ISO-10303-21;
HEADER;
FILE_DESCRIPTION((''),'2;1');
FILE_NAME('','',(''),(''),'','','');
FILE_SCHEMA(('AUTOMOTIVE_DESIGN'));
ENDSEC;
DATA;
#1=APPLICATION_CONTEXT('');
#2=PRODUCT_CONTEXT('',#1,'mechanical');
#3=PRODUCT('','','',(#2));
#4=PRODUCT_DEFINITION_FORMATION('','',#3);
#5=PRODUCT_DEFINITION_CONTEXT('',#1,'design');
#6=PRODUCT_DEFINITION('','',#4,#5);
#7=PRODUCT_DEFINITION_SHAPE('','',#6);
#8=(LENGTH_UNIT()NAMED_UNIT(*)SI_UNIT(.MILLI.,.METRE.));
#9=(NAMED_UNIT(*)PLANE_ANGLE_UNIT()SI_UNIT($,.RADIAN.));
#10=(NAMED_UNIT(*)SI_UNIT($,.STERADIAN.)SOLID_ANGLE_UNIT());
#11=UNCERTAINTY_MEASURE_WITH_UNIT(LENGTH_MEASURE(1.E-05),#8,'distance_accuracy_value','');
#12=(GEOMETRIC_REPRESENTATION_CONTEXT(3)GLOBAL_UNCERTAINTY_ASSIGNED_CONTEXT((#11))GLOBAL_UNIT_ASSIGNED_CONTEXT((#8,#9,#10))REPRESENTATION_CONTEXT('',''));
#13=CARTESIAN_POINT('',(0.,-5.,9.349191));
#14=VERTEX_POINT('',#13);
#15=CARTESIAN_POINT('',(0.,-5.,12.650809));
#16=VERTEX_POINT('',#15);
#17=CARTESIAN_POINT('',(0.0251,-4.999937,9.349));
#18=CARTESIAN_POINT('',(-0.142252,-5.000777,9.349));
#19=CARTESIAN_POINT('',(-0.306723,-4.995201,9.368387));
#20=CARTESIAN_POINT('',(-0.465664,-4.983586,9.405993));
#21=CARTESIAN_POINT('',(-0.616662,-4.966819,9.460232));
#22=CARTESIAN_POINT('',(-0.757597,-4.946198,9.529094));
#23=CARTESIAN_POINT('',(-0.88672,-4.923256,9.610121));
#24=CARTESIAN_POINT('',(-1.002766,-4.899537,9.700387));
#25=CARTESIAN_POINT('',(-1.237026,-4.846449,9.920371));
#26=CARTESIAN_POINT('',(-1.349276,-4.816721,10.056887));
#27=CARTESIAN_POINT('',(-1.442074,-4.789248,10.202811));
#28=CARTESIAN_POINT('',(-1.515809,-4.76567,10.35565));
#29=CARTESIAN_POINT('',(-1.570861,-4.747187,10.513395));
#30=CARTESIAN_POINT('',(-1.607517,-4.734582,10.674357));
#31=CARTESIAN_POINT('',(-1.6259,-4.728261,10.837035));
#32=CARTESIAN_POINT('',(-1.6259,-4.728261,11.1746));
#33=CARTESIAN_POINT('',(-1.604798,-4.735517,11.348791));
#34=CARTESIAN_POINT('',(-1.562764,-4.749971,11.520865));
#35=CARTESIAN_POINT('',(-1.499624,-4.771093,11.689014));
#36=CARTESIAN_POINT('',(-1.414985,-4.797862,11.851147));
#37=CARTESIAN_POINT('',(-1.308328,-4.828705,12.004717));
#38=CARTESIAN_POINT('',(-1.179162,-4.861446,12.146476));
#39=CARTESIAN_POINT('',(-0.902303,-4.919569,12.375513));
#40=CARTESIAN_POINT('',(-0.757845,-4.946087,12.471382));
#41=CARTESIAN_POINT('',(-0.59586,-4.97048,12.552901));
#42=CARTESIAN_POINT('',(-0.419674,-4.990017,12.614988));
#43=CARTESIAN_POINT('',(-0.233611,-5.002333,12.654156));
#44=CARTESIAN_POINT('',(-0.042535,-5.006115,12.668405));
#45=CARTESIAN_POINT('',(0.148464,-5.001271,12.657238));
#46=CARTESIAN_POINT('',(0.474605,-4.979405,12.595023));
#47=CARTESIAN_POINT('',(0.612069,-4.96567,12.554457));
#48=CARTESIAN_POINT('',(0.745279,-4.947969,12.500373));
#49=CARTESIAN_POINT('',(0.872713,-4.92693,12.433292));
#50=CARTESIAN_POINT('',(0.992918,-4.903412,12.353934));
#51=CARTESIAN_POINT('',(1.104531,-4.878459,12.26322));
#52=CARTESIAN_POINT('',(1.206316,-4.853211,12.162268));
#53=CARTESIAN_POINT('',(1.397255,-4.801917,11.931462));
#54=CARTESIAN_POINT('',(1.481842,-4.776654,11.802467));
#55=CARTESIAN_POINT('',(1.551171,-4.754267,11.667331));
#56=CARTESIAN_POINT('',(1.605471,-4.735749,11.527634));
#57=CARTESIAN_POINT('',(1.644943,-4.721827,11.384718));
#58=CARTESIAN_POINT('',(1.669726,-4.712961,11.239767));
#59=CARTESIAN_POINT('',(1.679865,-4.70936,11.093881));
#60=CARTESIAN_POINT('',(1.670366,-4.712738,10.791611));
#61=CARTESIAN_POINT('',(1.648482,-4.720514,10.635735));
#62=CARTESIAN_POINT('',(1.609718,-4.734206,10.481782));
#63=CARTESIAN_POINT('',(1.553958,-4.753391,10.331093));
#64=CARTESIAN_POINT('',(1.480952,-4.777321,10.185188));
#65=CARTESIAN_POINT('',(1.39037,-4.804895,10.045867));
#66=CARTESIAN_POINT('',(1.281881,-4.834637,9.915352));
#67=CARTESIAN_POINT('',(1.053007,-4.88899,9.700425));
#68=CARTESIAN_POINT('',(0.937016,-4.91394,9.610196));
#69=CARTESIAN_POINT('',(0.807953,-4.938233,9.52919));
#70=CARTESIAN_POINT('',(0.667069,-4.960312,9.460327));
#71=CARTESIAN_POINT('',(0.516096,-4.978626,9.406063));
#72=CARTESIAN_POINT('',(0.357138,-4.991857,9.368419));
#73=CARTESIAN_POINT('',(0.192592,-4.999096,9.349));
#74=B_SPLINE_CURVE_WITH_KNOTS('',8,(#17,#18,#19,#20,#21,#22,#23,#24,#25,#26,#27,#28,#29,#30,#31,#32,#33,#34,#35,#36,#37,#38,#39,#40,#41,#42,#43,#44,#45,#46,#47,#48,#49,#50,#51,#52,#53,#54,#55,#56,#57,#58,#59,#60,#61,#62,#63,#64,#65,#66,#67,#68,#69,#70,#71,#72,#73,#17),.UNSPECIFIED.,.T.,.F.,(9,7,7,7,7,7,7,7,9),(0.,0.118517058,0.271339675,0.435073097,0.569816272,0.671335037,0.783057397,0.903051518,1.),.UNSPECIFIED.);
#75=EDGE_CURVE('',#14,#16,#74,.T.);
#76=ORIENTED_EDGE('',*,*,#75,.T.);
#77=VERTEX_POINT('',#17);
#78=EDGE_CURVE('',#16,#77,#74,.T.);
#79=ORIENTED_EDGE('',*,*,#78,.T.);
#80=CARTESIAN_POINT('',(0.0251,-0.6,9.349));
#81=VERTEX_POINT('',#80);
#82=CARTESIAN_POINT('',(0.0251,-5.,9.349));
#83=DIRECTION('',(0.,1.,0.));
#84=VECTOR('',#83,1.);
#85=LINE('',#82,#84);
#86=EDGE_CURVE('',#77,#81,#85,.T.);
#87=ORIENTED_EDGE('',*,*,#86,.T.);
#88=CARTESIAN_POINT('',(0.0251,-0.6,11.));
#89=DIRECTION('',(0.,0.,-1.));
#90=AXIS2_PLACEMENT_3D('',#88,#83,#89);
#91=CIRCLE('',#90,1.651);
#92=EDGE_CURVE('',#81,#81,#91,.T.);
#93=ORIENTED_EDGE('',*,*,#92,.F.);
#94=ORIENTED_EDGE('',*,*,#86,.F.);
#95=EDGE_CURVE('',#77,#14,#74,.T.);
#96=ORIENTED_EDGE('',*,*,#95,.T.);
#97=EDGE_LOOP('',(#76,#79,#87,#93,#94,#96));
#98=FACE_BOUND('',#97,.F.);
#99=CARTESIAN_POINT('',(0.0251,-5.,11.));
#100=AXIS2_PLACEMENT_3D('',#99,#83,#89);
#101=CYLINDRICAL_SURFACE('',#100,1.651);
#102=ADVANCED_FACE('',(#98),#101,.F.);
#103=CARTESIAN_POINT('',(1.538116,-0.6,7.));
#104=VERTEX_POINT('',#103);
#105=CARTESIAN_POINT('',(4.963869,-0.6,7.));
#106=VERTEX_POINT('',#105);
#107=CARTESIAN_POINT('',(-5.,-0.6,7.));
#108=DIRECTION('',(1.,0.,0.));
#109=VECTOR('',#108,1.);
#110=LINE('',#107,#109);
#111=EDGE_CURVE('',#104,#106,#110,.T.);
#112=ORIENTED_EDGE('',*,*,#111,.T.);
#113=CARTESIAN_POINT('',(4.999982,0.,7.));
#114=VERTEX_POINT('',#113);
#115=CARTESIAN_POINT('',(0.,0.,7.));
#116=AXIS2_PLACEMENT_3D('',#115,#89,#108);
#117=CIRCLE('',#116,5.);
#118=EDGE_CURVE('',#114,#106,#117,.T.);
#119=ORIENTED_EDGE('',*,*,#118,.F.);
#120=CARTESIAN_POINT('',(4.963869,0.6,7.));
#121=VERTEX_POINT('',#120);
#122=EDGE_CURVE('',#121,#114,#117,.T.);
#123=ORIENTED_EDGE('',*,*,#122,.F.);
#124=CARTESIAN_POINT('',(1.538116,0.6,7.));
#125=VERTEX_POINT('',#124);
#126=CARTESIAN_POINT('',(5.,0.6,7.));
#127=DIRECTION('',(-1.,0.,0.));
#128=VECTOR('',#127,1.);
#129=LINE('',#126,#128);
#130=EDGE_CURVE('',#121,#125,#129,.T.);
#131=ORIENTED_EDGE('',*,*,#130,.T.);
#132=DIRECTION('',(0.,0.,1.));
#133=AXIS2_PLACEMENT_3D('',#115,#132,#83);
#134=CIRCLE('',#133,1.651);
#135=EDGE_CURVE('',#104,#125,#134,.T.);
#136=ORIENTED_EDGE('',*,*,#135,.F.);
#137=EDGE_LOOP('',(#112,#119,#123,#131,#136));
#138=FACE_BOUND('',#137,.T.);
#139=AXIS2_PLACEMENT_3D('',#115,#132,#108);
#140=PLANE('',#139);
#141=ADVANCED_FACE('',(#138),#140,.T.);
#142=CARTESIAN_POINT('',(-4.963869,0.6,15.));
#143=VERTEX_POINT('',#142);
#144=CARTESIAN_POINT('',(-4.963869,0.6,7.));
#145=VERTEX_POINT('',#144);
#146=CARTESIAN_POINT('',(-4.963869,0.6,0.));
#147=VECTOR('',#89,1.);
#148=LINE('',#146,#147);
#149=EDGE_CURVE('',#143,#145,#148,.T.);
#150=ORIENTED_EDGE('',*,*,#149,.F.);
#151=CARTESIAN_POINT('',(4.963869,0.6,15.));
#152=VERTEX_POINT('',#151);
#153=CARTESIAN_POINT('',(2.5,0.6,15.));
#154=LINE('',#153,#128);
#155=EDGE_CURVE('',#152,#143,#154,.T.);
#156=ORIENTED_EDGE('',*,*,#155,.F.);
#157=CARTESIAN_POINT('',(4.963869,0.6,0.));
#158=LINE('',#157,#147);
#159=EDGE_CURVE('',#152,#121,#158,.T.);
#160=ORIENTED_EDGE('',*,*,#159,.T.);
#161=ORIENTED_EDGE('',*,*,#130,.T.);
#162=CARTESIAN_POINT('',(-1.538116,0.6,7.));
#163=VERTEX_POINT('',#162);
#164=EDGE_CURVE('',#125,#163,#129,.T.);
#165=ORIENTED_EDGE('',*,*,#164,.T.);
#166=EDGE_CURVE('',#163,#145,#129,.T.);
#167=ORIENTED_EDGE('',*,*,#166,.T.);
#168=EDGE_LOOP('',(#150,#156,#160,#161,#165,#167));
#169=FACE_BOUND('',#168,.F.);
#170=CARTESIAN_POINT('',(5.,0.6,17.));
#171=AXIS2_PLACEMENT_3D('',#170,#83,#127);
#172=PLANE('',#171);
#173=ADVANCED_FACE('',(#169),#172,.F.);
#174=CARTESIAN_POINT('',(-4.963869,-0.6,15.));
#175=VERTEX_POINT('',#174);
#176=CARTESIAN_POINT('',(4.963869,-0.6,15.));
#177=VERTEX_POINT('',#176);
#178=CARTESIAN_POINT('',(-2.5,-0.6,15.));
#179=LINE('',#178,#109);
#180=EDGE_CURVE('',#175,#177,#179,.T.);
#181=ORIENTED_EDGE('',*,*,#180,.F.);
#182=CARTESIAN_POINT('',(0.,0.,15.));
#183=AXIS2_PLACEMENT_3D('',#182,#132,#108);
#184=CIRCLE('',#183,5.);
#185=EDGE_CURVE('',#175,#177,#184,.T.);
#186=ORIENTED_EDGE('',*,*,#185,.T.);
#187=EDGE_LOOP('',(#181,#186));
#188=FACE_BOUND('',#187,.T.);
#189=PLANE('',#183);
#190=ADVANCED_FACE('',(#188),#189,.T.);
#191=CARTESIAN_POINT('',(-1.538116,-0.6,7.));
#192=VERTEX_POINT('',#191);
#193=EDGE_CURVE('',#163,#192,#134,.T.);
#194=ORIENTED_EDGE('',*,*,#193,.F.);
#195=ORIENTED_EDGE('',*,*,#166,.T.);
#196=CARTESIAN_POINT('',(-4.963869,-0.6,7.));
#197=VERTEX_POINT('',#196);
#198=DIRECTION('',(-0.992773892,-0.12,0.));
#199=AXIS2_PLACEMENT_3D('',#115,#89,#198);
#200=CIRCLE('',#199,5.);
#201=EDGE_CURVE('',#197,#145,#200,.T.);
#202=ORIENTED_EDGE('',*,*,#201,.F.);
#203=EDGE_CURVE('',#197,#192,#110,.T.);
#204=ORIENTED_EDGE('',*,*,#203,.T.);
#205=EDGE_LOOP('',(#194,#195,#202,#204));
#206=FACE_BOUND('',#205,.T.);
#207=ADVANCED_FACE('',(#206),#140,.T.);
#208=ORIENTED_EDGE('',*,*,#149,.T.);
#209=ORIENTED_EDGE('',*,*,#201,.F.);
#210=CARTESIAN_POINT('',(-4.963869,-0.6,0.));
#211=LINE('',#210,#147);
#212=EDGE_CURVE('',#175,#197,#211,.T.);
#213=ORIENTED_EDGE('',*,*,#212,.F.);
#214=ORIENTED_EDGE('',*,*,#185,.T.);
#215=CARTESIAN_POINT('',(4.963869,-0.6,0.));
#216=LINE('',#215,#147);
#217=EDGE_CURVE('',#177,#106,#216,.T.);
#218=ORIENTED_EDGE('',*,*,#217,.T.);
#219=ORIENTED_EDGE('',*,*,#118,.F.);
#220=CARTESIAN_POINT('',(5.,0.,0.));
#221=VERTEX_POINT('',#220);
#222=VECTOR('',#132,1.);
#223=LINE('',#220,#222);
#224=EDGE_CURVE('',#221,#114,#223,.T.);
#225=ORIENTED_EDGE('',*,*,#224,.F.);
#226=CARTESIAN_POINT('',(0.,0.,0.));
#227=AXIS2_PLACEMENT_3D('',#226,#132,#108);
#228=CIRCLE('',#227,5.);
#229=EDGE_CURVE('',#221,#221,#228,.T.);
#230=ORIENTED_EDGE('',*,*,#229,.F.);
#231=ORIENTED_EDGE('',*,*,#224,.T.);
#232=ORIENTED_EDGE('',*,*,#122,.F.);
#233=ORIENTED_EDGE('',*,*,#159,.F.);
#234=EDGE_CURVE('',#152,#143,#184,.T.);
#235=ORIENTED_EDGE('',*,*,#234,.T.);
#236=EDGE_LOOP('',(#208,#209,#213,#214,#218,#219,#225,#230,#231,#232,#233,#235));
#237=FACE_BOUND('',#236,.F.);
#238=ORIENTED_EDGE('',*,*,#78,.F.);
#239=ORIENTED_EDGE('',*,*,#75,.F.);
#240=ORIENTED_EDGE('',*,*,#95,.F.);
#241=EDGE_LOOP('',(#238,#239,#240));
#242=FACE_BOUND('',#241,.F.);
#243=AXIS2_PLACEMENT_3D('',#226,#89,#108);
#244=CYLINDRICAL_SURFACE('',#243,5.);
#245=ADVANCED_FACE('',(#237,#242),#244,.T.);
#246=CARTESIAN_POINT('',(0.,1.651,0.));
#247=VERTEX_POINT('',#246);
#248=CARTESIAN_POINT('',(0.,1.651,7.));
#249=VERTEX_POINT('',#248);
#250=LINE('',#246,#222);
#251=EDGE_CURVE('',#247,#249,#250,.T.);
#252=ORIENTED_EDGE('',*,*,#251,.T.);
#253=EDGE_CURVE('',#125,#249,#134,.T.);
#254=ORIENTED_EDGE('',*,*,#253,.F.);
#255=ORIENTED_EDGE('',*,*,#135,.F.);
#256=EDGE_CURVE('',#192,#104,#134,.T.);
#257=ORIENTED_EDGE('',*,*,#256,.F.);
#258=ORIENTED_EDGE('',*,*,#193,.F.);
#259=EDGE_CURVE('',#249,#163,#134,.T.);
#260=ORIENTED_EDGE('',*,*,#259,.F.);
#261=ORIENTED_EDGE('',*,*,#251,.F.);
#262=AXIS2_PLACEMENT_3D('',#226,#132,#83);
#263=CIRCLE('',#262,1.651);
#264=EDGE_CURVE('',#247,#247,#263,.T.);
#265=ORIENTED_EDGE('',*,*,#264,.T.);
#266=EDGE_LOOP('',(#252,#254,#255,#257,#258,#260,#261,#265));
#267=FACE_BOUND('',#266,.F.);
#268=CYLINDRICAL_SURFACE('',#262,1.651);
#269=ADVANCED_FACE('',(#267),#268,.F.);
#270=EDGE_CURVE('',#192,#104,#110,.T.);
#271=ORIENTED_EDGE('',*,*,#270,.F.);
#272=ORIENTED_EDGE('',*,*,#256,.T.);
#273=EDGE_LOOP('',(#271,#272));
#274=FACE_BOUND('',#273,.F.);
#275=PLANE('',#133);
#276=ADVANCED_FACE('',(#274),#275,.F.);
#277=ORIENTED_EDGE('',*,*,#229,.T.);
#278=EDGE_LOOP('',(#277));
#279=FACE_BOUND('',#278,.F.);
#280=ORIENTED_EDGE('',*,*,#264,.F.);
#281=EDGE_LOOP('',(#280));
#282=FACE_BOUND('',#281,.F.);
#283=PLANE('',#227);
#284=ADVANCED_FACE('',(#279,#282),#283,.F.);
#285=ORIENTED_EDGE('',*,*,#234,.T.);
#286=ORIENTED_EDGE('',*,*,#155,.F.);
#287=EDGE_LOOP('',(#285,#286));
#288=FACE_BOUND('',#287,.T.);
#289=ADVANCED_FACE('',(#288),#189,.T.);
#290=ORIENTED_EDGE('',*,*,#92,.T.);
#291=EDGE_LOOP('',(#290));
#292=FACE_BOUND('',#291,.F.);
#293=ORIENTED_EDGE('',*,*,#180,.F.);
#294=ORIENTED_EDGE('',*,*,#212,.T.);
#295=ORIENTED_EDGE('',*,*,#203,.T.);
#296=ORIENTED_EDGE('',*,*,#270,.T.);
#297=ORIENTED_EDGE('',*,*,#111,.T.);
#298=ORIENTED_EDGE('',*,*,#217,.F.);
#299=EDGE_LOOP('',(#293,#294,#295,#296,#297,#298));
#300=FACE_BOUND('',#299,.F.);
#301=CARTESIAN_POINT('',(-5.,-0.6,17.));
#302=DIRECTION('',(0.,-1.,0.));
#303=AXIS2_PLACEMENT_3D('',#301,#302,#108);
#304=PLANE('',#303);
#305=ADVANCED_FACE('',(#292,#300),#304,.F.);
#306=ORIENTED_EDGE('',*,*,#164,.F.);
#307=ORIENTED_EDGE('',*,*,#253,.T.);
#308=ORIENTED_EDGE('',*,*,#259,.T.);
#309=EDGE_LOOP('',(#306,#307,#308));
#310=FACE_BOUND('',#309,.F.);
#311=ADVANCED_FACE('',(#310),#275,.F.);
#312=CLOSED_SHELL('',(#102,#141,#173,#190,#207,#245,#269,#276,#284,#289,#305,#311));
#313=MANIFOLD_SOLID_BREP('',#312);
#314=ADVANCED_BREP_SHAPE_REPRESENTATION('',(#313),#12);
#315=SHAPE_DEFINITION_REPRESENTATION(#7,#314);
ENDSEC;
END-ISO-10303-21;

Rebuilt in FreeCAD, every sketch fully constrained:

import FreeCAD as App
import Part
import Sketcher

V = App.Vector

doc = App.newDocument("Part")
params = doc.addObject("Spreadsheet::Sheet", "Params")
for row, (alias, value) in enumerate([
    ("sketch1_diameter", "10 mm"),
    ("pad1_length", "15 mm"),
    ("hole_diameter", "3.302 mm"),
    ("hole_depth", "7 mm"),
    ("sketch3_height", "1 mm"),
    ("pad2_length", "2 mm"),
    ("hole2_diameter", "3.302 mm"),
    ("hole2_depth", "4.5 mm"),
    ("sketch5_height", "1 mm"),
    ("pad3_length", "2 mm"),
    ("sketch6_height", "1.2 mm"),
    ("sketch6_width", "10 mm"),
    ("pocket1_length", "10 mm"),
], start=1):
    params.set(f"A{row}", alias)
    params.set(f"B{row}", "=" + value)
    params.setAlias(f"B{row}", alias)

body = doc.addObject("PartDesign::Body", "Body")

# Sketch on XY plane
sketch1 = doc.addObject("Sketcher::SketchObject", "Sketch")
body.addObject(sketch1)
sketch1.AttachmentSupport = (doc.XY_Plane, [""])
sketch1.MapMode = "FlatFace"
sketch1.addGeometry(Part.Circle(V(0, 0, 0), V(0, 0, 1), 5), False)
sketch1.addConstraint(Sketcher.Constraint("Coincident", 0, 3, -1, 1))
sketch1.addConstraint(Sketcher.Constraint("Diameter", 0, 10.0))
sketch1.setExpression("Constraints[1]", "Params.sketch1_diameter")
pad1 = doc.addObject("PartDesign::Pad", "Pad")
body.addObject(pad1)
pad1.Profile = sketch1
pad1.setExpression("Length", "Params.pad1_length")

# Sketch on XY plane
sketch2 = doc.addObject("Sketcher::SketchObject", "Sketch001")
body.addObject(sketch2)
sketch2.AttachmentSupport = (doc.XY_Plane, [""])
sketch2.MapMode = "FlatFace"
sketch2.addGeometry(Part.Circle(V(0, 0, 0), V(0, 0, 1), 1.7), False)
sketch2.addConstraint(Sketcher.Constraint("Coincident", 0, 3, -1, 1))
sketch2.addConstraint(Sketcher.Constraint("Diameter", 0, 3.302))
doc.recompute()
hole = doc.addObject("PartDesign::Hole", "Hole")
body.addObject(hole)
hole.Profile = sketch2
hole.ThreadType = "None"
hole.setExpression("Diameter", "Params.hole_diameter")
hole.DepthType = "Dimension"
hole.setExpression("Depth", "Params.hole_depth")
hole.DrillPoint = "Flat"
hole.Reversed = True

# Sketch on XY plane
sketch3 = doc.addObject("Sketcher::SketchObject", "Sketch002")
body.addObject(sketch3)
sketch3.AttachmentSupport = (doc.XY_Plane, [""])
sketch3.MapMode = "FlatFace"
sketch3.AttachmentOffset = App.Placement(V(0, 0, 15), App.Rotation())
sketch3.addGeometry(Part.LineSegment(V(-5, 0.5, 0), V(-5, -0.5, 0)), False)
sketch3.addGeometry(Part.LineSegment(V(-5, -0.5, 0), V(5, -0.5, 0)), False)
sketch3.addGeometry(Part.LineSegment(V(5, -0.5, 0), V(5, 0.5, 0)), False)
sketch3.addGeometry(Part.LineSegment(V(5, 0.5, 0), V(-5, 0.5, 0)), False)
sketch3.addConstraint(Sketcher.Constraint("Coincident", 0, 2, 1, 1))
sketch3.addConstraint(Sketcher.Constraint("Coincident", 1, 2, 2, 1))
sketch3.addConstraint(Sketcher.Constraint("Coincident", 2, 2, 3, 1))
sketch3.addConstraint(Sketcher.Constraint("Coincident", 3, 2, 0, 1))
sketch3.addConstraint(Sketcher.Constraint("Vertical", 0))
sketch3.addConstraint(Sketcher.Constraint("Horizontal", 1))
sketch3.addConstraint(Sketcher.Constraint("Vertical", 2))
sketch3.addConstraint(Sketcher.Constraint("Horizontal", 3))
sketch3.addConstraint(Sketcher.Constraint("Symmetric", 0, 2, 2, 2, -1, 1))
sketch3.addConstraint(Sketcher.Constraint("DistanceY", 0, 2, 0, 1, 1.0))
sketch3.addConstraint(Sketcher.Constraint("DistanceX", 1, 1, 1, 2, 9.9498))
sketch3.setExpression("Constraints[9]", "Params.sketch3_height")
pad2 = doc.addObject("PartDesign::Pad", "Pad001")
body.addObject(pad2)
pad2.Profile = sketch3
pad2.setExpression("Length", "Params.pad2_length")

# Sketch on XZ plane
sketch4 = doc.addObject("Sketcher::SketchObject", "Sketch003")
body.addObject(sketch4)
sketch4.AttachmentSupport = (doc.XZ_Plane, [""])
sketch4.MapMode = "FlatFace"
sketch4.AttachmentOffset = App.Placement(V(0, 0, 5), App.Rotation())
sketch4.addGeometry(Part.Circle(V(0, 11, 0), V(0, 0, 1), 1.7), False)
sketch4.addConstraint(Sketcher.Constraint("Diameter", 0, 3.302))
sketch4.addConstraint(Sketcher.Constraint("DistanceY", -1, 1, 0, 3, 11.0))
sketch4.addConstraint(Sketcher.Constraint("DistanceX", -1, 1, 0, 3, 0.025))
doc.recompute()
hole2 = doc.addObject("PartDesign::Hole", "Hole001")
body.addObject(hole2)
hole2.Profile = sketch4
hole2.ThreadType = "None"
hole2.setExpression("Diameter", "Params.hole2_diameter")
hole2.DepthType = "Dimension"
hole2.setExpression("Depth", "Params.hole2_depth")
hole2.DrillPoint = "Flat"

# Sketch on XY plane
sketch5 = doc.addObject("Sketcher::SketchObject", "Sketch004")
body.addObject(sketch5)
sketch5.AttachmentSupport = (doc.XY_Plane, [""])
sketch5.MapMode = "FlatFace"
sketch5.AttachmentOffset = App.Placement(V(0, 0, 15), App.Rotation())
sketch5.addGeometry(Part.LineSegment(V(5, 0.5, 0), V(-5, 0.5, 0)), False)
sketch5.addGeometry(Part.LineSegment(V(-5, 0.5, 0), V(-5, -0.5, 0)), False)
sketch5.addGeometry(Part.LineSegment(V(-5, -0.5, 0), V(5, -0.5, 0)), False)
sketch5.addGeometry(Part.LineSegment(V(5, -0.5, 0), V(5, 0.5, 0)), False)
sketch5.addConstraint(Sketcher.Constraint("Coincident", 0, 2, 1, 1))
sketch5.addConstraint(Sketcher.Constraint("Coincident", 1, 2, 2, 1))
sketch5.addConstraint(Sketcher.Constraint("Coincident", 2, 2, 3, 1))
sketch5.addConstraint(Sketcher.Constraint("Coincident", 3, 2, 0, 1))
sketch5.addConstraint(Sketcher.Constraint("Horizontal", 0))
sketch5.addConstraint(Sketcher.Constraint("Vertical", 1))
sketch5.addConstraint(Sketcher.Constraint("Horizontal", 2))
sketch5.addConstraint(Sketcher.Constraint("Vertical", 3))
sketch5.addConstraint(Sketcher.Constraint("Symmetric", 0, 2, 2, 2, -1, 1))
sketch5.addConstraint(Sketcher.Constraint("DistanceY", 1, 2, 1, 1, 1.0))
sketch5.addConstraint(Sketcher.Constraint("DistanceX", 0, 2, 0, 1, 9.9498))
sketch5.setExpression("Constraints[9]", "Params.sketch5_height")
pad3 = doc.addObject("PartDesign::Pad", "Pad002")
body.addObject(pad3)
pad3.Profile = sketch5
pad3.setExpression("Length", "Params.pad3_length")
pad3.Reversed = True

# Sketch on XY plane
sketch6 = doc.addObject("Sketcher::SketchObject", "Sketch005")
body.addObject(sketch6)
sketch6.AttachmentSupport = (doc.XY_Plane, [""])
sketch6.MapMode = "FlatFace"
sketch6.AttachmentOffset = App.Placement(V(0, 0, 17), App.Rotation())
sketch6.addGeometry(Part.LineSegment(V(5, -0.6, 0), V(5, 0.6, 0)), False)
sketch6.addGeometry(Part.LineSegment(V(5, 0.6, 0), V(-5, 0.6, 0)), False)
sketch6.addGeometry(Part.LineSegment(V(-5, 0.6, 0), V(-5, -0.6, 0)), False)
sketch6.addGeometry(Part.LineSegment(V(-5, -0.6, 0), V(5, -0.6, 0)), False)
sketch6.addConstraint(Sketcher.Constraint("Coincident", 0, 2, 1, 1))
sketch6.addConstraint(Sketcher.Constraint("Coincident", 1, 2, 2, 1))
sketch6.addConstraint(Sketcher.Constraint("Coincident", 2, 2, 3, 1))
sketch6.addConstraint(Sketcher.Constraint("Coincident", 3, 2, 0, 1))
sketch6.addConstraint(Sketcher.Constraint("Vertical", 0))
sketch6.addConstraint(Sketcher.Constraint("Horizontal", 1))
sketch6.addConstraint(Sketcher.Constraint("Vertical", 2))
sketch6.addConstraint(Sketcher.Constraint("Horizontal", 3))
sketch6.addConstraint(Sketcher.Constraint("Symmetric", 0, 2, 2, 2, -1, 1))
sketch6.addConstraint(Sketcher.Constraint("DistanceY", 0, 1, 0, 2, 1.2))
sketch6.addConstraint(Sketcher.Constraint("DistanceX", 1, 2, 1, 1, 10.0))
sketch6.setExpression("Constraints[9]", "Params.sketch6_height")
sketch6.setExpression("Constraints[10]", "Params.sketch6_width")
pocket1 = doc.addObject("PartDesign::Pocket", "Pocket")
body.addObject(pocket1)
pocket1.Profile = sketch6
pocket1.setExpression("Length", "Params.pocket1_length")

doc.recompute()
